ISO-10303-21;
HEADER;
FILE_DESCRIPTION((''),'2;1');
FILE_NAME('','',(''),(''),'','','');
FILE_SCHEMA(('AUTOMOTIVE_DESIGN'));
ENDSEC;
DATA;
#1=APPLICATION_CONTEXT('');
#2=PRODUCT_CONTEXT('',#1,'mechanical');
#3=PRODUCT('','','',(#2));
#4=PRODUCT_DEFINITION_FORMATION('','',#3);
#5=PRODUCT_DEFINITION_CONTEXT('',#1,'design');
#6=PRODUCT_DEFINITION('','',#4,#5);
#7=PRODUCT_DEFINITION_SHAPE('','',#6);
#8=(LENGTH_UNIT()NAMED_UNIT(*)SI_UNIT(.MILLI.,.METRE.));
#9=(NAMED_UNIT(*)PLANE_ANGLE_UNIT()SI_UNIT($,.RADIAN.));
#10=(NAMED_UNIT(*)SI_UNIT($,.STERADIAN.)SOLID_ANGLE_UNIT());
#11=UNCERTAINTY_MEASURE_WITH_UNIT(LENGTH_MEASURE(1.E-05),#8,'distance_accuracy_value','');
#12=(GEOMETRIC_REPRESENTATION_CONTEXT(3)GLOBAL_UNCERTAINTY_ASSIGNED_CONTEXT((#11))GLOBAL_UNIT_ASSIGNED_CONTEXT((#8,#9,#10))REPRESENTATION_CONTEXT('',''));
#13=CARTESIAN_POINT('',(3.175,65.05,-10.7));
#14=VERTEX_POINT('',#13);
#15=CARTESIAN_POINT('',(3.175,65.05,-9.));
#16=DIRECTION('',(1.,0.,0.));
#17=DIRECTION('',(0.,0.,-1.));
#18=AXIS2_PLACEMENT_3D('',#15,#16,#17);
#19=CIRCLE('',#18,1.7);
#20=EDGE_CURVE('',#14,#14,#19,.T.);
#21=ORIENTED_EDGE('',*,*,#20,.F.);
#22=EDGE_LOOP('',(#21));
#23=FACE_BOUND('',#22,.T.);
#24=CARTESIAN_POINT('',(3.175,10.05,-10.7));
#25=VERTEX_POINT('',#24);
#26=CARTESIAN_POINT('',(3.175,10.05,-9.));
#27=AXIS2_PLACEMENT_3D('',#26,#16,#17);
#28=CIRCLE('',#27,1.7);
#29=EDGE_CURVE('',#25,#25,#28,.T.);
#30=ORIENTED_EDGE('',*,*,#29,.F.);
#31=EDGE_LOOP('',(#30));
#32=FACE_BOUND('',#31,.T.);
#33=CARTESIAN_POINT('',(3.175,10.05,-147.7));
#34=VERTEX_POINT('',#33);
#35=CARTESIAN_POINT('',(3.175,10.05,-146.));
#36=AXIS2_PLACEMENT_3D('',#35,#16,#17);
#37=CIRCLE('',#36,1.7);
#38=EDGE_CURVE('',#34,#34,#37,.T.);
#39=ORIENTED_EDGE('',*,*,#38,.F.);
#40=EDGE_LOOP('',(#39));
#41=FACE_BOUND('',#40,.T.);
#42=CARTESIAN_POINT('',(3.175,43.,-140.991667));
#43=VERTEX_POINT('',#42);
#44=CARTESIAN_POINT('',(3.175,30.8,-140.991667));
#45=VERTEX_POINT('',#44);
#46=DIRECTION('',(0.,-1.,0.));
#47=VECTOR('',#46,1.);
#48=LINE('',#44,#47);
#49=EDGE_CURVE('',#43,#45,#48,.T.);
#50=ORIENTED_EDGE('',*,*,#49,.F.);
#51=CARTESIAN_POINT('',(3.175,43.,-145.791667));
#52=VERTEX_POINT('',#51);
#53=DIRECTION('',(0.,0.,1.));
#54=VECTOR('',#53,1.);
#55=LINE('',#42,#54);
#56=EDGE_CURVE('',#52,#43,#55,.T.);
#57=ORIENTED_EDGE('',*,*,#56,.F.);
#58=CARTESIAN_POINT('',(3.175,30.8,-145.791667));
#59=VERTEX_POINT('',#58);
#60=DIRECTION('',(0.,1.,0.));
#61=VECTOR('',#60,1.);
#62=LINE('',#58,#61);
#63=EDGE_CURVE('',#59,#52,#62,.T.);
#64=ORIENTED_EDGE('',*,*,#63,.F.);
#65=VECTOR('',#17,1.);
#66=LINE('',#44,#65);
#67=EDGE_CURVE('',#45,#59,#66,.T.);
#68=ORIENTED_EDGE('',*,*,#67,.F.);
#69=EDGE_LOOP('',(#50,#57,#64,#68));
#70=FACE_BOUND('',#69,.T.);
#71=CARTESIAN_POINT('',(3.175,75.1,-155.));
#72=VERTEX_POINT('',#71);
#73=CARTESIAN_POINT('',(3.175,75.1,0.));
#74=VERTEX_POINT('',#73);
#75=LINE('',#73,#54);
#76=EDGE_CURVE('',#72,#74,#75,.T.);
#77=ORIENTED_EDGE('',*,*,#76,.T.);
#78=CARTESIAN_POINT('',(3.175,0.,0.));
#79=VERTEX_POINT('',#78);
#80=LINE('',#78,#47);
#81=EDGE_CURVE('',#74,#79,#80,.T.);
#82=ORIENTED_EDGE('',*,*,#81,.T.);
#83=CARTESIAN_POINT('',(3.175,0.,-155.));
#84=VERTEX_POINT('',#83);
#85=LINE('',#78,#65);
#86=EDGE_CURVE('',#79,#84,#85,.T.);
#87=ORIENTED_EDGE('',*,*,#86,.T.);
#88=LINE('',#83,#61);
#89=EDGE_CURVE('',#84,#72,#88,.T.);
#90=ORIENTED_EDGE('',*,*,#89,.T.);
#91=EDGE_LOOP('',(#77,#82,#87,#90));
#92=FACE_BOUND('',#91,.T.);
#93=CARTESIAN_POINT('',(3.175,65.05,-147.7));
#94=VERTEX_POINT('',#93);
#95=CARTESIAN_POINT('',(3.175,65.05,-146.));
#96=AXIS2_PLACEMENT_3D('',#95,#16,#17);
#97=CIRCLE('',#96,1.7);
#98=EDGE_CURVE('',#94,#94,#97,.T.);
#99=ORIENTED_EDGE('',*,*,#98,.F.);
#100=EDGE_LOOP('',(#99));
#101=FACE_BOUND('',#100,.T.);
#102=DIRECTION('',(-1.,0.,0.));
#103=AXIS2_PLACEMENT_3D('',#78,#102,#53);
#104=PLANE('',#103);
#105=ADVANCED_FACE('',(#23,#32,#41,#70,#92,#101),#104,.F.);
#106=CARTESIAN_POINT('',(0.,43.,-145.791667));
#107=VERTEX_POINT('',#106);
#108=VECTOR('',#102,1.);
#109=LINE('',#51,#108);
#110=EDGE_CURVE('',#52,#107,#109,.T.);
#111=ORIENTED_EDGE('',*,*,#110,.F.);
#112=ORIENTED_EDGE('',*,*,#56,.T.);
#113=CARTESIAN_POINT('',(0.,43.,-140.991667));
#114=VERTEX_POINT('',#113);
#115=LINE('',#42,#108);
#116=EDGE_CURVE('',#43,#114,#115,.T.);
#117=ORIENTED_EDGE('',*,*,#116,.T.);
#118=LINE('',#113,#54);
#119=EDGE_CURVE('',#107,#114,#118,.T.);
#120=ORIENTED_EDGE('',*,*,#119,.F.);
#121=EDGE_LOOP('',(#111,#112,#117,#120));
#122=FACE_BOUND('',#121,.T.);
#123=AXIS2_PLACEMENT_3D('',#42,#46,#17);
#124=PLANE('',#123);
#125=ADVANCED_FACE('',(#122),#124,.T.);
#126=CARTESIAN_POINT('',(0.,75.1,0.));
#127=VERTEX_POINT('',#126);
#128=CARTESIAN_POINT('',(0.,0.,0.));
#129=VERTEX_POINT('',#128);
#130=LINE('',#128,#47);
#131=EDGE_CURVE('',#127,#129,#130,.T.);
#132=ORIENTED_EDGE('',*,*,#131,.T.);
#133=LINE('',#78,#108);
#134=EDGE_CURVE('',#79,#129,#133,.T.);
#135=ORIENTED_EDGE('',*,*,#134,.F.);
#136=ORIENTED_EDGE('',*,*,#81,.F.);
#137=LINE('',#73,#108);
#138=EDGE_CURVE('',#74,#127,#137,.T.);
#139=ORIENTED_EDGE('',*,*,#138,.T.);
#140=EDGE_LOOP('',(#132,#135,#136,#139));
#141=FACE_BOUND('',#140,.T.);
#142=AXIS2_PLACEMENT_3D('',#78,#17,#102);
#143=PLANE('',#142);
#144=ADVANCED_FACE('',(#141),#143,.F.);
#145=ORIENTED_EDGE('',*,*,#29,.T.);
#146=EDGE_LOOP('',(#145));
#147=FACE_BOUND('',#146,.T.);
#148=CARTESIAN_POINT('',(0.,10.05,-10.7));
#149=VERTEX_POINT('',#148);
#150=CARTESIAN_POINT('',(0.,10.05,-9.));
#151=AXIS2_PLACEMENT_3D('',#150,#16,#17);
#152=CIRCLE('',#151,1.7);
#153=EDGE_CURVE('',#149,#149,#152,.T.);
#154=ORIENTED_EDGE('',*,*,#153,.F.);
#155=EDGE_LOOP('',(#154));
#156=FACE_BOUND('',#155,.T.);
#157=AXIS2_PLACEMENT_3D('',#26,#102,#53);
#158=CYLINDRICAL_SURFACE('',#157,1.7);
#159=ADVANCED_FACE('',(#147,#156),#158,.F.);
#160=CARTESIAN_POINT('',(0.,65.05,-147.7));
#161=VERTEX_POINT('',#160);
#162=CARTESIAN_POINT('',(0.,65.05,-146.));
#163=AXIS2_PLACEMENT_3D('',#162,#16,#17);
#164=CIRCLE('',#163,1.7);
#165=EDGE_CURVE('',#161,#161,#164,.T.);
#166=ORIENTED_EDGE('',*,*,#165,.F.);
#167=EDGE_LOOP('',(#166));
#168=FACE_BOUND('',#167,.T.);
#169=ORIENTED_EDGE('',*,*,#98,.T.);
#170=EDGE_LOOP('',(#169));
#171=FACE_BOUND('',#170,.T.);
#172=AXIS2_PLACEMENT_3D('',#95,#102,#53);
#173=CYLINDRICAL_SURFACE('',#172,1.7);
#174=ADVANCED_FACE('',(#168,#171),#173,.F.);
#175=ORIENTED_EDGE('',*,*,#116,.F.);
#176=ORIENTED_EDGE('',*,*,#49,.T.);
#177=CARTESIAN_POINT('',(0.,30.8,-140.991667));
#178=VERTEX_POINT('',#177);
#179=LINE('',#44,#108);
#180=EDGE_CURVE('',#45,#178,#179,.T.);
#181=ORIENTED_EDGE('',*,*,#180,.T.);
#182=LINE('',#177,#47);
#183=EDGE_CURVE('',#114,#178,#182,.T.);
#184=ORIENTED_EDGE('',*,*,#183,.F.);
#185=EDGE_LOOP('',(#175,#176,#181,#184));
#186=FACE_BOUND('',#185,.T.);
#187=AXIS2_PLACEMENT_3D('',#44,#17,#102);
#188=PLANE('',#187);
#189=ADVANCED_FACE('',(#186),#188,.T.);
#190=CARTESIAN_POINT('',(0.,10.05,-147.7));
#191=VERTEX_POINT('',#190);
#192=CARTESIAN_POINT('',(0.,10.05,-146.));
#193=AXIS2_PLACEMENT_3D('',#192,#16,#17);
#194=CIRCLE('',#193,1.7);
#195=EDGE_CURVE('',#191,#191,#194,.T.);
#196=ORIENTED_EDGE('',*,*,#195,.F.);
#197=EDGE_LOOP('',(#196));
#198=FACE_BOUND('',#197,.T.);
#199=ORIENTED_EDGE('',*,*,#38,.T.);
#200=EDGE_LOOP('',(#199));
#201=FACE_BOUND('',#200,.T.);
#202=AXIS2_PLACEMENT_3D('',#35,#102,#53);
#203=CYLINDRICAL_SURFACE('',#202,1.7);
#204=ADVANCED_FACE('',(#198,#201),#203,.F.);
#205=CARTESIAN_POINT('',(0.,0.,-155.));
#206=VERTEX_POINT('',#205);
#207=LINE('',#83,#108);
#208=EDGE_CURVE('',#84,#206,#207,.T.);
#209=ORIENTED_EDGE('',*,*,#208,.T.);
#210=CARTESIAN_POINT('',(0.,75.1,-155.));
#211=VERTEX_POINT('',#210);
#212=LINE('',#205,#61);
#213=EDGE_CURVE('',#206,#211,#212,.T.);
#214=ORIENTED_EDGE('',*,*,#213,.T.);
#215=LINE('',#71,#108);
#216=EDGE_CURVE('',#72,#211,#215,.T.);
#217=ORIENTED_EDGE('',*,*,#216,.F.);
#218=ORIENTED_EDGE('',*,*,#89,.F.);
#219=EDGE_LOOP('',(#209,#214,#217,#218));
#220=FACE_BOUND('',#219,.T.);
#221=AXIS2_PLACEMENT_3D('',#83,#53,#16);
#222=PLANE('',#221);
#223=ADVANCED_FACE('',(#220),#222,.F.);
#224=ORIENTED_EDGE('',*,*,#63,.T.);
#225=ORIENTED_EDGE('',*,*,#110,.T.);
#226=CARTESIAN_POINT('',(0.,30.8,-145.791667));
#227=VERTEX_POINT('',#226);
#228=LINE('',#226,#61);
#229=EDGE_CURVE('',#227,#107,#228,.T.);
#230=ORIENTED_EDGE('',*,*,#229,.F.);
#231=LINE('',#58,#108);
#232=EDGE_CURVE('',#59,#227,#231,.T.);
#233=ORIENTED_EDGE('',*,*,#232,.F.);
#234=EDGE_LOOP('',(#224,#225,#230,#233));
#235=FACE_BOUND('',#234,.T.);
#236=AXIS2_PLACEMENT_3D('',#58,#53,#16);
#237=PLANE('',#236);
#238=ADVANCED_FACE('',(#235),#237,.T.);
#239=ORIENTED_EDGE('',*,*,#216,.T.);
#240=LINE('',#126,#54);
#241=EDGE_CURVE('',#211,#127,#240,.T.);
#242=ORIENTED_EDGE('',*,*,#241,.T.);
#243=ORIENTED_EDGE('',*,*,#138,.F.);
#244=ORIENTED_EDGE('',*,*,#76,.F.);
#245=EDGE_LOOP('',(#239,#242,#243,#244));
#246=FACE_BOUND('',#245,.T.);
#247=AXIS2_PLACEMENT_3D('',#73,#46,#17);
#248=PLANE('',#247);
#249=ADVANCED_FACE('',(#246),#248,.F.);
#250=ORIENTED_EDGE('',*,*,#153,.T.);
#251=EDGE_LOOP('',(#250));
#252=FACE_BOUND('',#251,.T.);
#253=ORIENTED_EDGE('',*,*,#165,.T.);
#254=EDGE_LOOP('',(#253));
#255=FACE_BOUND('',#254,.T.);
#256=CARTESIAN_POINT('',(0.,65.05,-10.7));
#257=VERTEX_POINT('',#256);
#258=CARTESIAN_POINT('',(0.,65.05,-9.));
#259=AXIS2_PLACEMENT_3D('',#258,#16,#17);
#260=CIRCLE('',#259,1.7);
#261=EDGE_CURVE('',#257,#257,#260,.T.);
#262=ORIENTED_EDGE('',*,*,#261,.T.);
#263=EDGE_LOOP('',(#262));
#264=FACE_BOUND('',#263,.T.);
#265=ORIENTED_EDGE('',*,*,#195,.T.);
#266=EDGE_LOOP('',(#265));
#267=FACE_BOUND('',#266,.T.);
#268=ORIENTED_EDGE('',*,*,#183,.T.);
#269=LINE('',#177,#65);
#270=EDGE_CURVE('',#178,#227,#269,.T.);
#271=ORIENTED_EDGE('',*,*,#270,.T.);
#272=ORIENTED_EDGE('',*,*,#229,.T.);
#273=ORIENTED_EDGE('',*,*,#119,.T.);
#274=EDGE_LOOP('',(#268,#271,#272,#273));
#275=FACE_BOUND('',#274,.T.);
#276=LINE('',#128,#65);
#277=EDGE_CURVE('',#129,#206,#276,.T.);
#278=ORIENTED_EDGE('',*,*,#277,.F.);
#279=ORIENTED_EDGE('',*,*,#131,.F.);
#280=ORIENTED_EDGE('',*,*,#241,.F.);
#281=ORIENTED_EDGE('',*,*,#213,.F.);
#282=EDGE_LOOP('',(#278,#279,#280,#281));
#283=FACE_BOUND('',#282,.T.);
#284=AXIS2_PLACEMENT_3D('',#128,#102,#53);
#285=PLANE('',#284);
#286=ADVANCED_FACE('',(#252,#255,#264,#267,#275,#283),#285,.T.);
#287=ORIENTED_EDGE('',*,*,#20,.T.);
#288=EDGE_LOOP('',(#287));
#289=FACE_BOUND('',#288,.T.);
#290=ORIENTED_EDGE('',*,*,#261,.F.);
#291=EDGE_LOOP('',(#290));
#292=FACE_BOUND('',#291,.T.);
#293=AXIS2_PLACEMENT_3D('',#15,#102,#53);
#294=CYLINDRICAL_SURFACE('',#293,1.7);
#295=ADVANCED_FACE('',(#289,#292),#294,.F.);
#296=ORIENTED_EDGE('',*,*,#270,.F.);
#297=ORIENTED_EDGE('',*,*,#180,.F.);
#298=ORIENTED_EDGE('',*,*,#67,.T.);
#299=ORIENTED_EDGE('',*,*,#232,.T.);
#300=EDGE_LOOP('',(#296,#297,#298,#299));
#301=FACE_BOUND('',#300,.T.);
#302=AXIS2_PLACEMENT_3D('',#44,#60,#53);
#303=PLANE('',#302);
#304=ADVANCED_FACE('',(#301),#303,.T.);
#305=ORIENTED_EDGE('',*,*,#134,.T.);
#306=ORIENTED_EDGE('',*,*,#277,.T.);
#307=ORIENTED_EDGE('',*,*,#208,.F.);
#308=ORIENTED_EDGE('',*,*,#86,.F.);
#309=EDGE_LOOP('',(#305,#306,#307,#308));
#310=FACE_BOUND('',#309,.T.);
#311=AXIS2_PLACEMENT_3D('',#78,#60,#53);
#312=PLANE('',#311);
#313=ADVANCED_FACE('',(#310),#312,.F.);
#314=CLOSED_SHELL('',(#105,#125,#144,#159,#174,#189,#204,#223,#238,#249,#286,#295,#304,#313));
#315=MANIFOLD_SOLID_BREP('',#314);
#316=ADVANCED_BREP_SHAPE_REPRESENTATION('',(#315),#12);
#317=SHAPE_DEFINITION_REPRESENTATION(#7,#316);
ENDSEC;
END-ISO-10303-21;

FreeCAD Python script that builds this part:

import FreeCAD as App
import Part
import Sketcher
from FreeCAD import Vector


def add_polygon(sketch, points):
    """Adds a closed chain of lines whose ends are joined by coincident constraints."""
    first, n = sketch.GeometryCount, len(points)
    for a, b in zip(points, points[1:] + points[:1]):
        sketch.addGeometry(Part.LineSegment(App.Vector(*a, 0), App.Vector(*b, 0)), False)
    for i in range(n):
        sketch.addConstraint(Sketcher.Constraint("Coincident", first + i, 2, first + (i + 1) % n, 1))

doc = App.newDocument("Part")
body = doc.addObject("PartDesign::Body", "Body")

# Sketch on YZ plane
sketch1 = body.newObject("Sketcher::SketchObject", "Sketch")
sketch1.AttachmentSupport = (doc.getObject("YZ_Plane"), [""])
sketch1.MapMode = "FlatFace"
add_polygon(sketch1, [(75.1, 0), (0, 0), (0, -155), (75.1, -155)])  # lines 0-3
sketch1.addGeometry(Part.Circle(Vector(10.1, -9, 0), Vector(0, 0, 1), 1.7), False)  # 4
sketch1.addGeometry(Part.Circle(Vector(10.1, -146, 0), Vector(0, 0, 1), 1.7), False)  # 5
add_polygon(sketch1, [(30.8, -145.8), (30.8, -141), (43, -141), (43, -145.8)])  # lines 6-9
sketch1.addGeometry(Part.Circle(Vector(65, -9, 0), Vector(0, 0, 1), 1.7), False)  # 10
sketch1.addGeometry(Part.Circle(Vector(65, -146, 0), Vector(0, 0, 1), 1.7), False)  # 11
sketch1.addConstraint(Sketcher.Constraint("Horizontal", 0))
sketch1.addConstraint(Sketcher.Constraint("Vertical", 1))
sketch1.addConstraint(Sketcher.Constraint("Horizontal", 2))
sketch1.addConstraint(Sketcher.Constraint("Vertical", 3))
sketch1.addConstraint(Sketcher.Constraint("Vertical", 6))
sketch1.addConstraint(Sketcher.Constraint("Horizontal", 7))
sketch1.addConstraint(Sketcher.Constraint("Vertical", 8))
sketch1.addConstraint(Sketcher.Constraint("Horizontal", 9))
sketch1.addConstraint(Sketcher.Constraint("Coincident", 0, 2, -1, 1))
sketch1.addConstraint(Sketcher.Constraint("Equal", 4, 5))
sketch1.addConstraint(Sketcher.Constraint("Equal", 5, 10))
sketch1.addConstraint(Sketcher.Constraint("Equal", 10, 11))
sketch1.addConstraint(Sketcher.Constraint("Horizontal", 4, 3, 10, 3))
sketch1.addConstraint(Sketcher.Constraint("Horizontal", 5, 3, 11, 3))
sketch1.addConstraint(Sketcher.Constraint("Vertical", 4, 3, 5, 3))
sketch1.addConstraint(Sketcher.Constraint("Vertical", 10, 3, 11, 3))
sketch1.addConstraint(Sketcher.Constraint("Diameter", 4, 3.4))
sketch1.addConstraint(Sketcher.Constraint("DistanceY", 1, 2, 1, 1, 155.0))
sketch1.addConstraint(Sketcher.Constraint("DistanceX", 0, 2, 0, 1, 75.1))
sketch1.addConstraint(Sketcher.Constraint("DistanceX", 7, 1, 7, 2, 12.2))
sketch1.addConstraint(Sketcher.Constraint("DistanceY", 6, 1, 6, 2, 4.8))
sketch1.addConstraint(Sketcher.Constraint("DistanceY", 4, 3, -1, 1, 9.0))
sketch1.addConstraint(Sketcher.Constraint("DistanceY", 5, 3, -1, 1, 146.0))
sketch1.addConstraint(Sketcher.Constraint("DistanceX", -1, 1, 7, 2, 43.0))
sketch1.addConstraint(Sketcher.Constraint("DistanceX", 4, 3, 10, 3, 55.0))
sketch1.addConstraint(Sketcher.Constraint("DistanceX", -1, 1, 4, 3, 10.05))
sketch1.addConstraint(Sketcher.Constraint("DistanceY", 6, 2, -1, 1, 140.991667))
pad1 = body.newObject("PartDesign::Pad", "Pad")
pad1.Profile = sketch1
pad1.Length = 3.175

doc.recompute()
